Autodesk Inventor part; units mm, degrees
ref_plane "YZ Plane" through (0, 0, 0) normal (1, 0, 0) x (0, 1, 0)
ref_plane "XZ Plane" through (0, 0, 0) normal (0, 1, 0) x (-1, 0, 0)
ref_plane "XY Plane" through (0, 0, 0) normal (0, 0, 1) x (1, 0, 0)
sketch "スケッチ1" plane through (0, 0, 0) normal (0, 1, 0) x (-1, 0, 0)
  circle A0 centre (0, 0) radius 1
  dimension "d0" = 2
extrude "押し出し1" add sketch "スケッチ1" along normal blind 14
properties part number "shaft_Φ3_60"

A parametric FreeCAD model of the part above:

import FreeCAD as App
import Part
import Sketcher
Q = App.Units.Quantity

doc = App.newDocument("Part")
body = doc.addObject("PartDesign::Body", "Body")

# Sketch on XZ plane
sketch1 = doc.addObject("Sketcher::SketchObject", "Sketch")
body.addObject(sketch1)
sketch1.AttachmentSupport = (doc.XZ_Plane, [""])
sketch1.MapMode = "FlatFace"
sketch1.addGeometry(Part.Circle(App.Vector(0, 0, 0), App.Vector(0, 0, 1), 1), False)
sketch1.addConstraint(Sketcher.Constraint("Coincident", 0, 3, -1, 1))
sketch1.addConstraint(Sketcher.Constraint("Diameter", 0, Q("2 mm")))
pad1 = doc.addObject("PartDesign::Pad", "Pad")
body.addObject(pad1)
pad1.Profile = sketch1
pad1.Length = 14
pad1.Reversed = True

doc.recompute()
